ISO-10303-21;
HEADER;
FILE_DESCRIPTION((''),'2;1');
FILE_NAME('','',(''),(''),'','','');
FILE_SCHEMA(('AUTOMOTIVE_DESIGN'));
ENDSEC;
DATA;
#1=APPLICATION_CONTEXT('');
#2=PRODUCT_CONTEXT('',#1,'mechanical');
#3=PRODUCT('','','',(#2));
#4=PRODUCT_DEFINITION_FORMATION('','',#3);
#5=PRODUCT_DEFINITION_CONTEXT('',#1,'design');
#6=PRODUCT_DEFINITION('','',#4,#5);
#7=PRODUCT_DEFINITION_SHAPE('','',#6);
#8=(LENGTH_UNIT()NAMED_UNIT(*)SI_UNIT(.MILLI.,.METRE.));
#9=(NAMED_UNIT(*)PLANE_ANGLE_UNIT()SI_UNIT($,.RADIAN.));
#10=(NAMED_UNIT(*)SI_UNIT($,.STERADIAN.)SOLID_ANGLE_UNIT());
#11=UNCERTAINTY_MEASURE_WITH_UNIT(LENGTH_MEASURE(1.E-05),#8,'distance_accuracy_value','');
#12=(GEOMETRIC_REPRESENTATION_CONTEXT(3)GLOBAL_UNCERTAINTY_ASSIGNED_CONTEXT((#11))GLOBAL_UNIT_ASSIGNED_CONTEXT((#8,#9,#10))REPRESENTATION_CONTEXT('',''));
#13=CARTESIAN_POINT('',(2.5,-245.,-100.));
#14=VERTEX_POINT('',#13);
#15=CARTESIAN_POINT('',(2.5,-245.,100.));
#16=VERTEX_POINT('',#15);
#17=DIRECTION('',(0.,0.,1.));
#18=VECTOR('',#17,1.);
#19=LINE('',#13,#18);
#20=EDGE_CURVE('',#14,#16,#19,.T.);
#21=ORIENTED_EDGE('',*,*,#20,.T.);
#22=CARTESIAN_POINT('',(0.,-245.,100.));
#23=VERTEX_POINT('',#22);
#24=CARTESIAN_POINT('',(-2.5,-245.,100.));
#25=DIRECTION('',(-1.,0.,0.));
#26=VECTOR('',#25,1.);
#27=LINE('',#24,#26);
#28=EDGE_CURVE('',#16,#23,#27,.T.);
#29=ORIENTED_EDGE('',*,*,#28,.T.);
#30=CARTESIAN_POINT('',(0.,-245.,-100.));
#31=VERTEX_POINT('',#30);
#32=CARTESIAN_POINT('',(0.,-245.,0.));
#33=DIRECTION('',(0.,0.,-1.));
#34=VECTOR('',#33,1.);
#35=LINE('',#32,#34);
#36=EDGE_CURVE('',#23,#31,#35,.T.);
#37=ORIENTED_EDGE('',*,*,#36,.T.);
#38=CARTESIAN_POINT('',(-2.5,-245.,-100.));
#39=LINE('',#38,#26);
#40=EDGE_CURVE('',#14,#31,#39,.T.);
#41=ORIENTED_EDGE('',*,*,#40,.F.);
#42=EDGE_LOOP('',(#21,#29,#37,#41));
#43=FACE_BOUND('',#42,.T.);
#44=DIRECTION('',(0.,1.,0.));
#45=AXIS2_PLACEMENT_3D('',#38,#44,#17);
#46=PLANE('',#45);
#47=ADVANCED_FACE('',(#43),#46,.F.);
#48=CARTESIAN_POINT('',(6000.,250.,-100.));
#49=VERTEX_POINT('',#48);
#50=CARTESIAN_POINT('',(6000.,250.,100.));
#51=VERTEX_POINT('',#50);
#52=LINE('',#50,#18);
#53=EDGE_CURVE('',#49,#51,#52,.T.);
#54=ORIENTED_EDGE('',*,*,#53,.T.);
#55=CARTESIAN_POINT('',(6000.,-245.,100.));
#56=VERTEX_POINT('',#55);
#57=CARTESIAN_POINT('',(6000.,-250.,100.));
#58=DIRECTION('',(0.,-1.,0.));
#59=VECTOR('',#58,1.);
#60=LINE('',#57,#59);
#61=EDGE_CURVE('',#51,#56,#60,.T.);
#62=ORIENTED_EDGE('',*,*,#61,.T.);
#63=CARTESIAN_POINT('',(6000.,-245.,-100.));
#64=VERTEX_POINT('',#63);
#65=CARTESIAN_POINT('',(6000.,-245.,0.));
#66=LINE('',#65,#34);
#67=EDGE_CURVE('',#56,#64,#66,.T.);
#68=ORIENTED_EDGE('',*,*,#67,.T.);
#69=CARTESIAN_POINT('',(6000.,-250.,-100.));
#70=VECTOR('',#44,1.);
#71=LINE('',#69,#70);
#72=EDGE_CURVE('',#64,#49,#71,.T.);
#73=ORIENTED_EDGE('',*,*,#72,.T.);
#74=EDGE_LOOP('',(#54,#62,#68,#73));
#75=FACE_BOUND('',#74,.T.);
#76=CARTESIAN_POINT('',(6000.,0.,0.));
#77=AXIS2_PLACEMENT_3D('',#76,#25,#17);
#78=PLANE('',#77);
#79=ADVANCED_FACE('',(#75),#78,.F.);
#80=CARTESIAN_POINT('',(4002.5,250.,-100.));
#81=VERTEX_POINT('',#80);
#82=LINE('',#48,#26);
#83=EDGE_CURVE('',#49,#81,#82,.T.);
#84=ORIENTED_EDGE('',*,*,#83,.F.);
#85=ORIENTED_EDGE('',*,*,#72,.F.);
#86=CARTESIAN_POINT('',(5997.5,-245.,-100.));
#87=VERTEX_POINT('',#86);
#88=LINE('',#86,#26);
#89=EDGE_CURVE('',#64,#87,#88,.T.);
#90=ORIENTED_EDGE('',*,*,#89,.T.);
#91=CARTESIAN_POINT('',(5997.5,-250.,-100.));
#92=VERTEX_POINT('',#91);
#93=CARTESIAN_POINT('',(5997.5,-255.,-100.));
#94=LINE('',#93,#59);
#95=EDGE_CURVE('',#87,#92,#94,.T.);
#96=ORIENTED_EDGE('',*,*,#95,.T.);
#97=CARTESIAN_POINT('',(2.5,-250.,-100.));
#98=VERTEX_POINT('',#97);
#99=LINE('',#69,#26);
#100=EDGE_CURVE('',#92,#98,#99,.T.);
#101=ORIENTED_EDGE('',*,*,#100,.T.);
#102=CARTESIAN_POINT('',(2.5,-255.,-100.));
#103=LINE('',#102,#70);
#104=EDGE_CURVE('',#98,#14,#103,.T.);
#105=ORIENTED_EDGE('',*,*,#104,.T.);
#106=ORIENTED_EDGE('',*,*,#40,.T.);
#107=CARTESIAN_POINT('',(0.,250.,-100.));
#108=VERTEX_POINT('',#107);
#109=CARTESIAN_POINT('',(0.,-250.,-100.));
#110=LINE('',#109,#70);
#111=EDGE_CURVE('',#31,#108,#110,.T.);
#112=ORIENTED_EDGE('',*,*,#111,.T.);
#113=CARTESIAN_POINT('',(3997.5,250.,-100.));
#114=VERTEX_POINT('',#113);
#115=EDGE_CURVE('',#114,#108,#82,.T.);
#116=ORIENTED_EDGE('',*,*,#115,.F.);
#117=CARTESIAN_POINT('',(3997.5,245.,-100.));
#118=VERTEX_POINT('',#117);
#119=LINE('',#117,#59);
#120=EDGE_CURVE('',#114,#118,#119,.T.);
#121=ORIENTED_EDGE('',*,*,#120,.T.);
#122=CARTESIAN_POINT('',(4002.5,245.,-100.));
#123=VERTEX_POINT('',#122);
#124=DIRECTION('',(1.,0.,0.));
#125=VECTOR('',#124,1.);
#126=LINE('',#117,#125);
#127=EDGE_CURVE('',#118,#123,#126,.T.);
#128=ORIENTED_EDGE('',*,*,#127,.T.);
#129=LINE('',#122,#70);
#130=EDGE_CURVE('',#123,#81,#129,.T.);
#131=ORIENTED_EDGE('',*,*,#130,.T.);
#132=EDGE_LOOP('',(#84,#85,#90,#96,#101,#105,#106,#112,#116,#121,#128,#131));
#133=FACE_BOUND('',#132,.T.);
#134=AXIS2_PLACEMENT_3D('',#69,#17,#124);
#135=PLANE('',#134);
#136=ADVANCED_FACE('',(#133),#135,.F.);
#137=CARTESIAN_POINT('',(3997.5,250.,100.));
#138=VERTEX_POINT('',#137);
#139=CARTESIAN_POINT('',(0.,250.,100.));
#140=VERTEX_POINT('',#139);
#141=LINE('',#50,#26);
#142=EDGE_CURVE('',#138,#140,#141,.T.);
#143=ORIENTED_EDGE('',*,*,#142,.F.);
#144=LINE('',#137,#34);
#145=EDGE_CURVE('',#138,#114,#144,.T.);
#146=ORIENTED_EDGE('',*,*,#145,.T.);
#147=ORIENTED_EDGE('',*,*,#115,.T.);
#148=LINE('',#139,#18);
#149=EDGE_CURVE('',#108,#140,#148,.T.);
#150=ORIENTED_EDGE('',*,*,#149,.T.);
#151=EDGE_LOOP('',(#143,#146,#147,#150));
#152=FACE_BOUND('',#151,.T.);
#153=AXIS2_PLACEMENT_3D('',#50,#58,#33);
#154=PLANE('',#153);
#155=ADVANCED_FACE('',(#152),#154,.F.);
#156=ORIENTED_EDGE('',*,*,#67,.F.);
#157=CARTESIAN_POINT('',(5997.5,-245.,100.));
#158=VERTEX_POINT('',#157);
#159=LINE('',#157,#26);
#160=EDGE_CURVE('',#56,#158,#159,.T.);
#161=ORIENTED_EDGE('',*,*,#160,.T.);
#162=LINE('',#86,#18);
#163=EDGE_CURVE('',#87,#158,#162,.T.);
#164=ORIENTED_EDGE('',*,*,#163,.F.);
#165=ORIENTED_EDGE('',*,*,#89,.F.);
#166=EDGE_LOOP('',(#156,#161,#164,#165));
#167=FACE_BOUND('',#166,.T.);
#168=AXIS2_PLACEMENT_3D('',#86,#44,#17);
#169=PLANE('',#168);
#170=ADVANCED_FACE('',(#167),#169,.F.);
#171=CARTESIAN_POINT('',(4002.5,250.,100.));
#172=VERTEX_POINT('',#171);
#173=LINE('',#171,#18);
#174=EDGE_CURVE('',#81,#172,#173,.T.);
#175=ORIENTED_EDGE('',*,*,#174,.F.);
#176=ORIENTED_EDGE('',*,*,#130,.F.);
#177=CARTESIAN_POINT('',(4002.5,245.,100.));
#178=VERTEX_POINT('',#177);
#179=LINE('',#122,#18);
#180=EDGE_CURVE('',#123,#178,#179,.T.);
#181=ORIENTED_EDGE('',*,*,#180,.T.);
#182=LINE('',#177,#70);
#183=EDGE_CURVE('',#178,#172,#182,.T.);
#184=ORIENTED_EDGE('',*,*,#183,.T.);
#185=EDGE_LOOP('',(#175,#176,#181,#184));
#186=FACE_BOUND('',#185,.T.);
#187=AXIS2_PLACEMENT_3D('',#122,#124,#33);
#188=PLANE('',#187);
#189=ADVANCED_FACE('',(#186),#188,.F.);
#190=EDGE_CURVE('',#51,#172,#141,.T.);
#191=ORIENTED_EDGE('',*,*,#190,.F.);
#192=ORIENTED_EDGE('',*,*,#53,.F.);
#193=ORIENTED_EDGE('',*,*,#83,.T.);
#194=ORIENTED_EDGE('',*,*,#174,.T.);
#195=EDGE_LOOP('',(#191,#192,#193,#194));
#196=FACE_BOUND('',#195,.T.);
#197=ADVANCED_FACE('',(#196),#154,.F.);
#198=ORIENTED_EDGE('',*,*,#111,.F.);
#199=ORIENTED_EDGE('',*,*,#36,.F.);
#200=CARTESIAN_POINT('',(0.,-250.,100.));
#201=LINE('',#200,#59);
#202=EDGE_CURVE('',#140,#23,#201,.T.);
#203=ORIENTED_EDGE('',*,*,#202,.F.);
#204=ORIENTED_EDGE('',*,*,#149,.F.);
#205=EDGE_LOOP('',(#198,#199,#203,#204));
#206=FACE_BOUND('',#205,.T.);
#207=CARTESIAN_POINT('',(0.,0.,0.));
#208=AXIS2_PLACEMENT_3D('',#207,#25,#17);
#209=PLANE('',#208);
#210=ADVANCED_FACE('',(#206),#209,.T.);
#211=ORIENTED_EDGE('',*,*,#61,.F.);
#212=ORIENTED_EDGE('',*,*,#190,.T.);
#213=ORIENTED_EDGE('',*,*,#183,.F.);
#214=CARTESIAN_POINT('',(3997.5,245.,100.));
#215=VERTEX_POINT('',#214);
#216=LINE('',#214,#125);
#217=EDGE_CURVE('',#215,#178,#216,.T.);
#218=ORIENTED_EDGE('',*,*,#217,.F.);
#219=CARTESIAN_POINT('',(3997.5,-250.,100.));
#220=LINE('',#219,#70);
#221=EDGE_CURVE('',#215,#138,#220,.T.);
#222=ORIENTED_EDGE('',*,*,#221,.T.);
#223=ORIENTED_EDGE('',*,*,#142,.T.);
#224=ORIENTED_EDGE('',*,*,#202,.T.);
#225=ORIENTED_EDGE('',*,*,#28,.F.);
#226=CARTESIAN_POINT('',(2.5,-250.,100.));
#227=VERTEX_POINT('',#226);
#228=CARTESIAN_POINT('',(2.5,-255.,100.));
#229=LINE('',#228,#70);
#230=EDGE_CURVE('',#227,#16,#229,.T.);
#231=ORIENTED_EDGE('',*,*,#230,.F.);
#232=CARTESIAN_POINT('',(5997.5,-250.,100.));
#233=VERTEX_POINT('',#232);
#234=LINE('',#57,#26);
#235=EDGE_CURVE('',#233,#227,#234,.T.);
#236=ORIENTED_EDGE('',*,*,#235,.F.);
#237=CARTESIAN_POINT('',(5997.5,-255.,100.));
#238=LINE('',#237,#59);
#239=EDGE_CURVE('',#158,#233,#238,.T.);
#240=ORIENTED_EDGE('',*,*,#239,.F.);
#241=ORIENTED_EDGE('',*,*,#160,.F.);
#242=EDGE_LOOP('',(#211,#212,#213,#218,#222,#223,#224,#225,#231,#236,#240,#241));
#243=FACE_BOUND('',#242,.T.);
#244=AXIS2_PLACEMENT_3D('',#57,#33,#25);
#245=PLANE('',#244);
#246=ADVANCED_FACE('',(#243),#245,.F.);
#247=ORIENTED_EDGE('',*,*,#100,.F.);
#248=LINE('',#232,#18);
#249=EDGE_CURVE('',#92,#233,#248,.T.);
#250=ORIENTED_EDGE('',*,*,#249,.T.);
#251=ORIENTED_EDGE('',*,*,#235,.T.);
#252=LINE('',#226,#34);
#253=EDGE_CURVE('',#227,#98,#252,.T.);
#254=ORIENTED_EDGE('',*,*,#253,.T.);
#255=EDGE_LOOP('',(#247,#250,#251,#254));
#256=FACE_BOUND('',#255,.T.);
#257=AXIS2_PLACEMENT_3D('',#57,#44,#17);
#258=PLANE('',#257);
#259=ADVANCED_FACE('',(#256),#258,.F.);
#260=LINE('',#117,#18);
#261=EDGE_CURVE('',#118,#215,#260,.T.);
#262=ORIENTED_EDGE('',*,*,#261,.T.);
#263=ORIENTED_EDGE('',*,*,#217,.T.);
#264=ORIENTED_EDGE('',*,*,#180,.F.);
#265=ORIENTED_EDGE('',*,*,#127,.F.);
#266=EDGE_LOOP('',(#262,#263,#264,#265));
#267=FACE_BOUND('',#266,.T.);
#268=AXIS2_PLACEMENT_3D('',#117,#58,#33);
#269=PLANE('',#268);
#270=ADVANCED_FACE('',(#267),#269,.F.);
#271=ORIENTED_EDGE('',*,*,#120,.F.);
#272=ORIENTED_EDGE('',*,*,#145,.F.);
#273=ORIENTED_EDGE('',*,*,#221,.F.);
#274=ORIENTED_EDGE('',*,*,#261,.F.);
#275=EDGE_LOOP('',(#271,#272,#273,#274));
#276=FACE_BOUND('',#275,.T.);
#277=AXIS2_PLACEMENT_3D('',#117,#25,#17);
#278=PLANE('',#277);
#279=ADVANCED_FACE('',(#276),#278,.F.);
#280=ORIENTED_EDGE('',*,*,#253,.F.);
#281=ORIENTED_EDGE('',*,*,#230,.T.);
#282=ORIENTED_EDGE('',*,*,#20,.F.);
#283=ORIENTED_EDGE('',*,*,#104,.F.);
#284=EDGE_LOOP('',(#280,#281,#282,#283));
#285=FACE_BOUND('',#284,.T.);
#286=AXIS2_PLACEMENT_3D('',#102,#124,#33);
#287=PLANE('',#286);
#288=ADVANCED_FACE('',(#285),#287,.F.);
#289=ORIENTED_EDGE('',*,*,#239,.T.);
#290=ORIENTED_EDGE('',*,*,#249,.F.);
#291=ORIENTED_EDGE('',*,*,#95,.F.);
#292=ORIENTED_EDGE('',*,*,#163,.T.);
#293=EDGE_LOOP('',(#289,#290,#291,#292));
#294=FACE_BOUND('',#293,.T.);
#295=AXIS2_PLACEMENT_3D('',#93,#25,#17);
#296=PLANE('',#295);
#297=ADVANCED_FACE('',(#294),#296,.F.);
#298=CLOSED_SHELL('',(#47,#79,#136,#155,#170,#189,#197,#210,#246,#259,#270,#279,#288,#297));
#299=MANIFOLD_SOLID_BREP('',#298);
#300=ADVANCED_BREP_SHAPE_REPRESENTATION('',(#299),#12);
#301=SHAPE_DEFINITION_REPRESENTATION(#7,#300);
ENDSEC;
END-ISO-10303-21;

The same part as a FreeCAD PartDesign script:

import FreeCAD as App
import Part
import Sketcher

doc = App.newDocument("Part")
body = doc.addObject("PartDesign::Body", "Body")

# Sketch on YZ plane
sketch1 = body.newObject("Sketcher::SketchObject", "Sketch")
sketch1.AttachmentSupport = (doc.getObject("YZ_Plane"), [""])
sketch1.MapMode = "FlatFace"
sketch1.addGeometry([
    Part.LineSegment(App.Vector(250, 100, 0), App.Vector(-250, 100, 0)),
    Part.LineSegment(App.Vector(-250, 100, 0), App.Vector(-250, -100, 0)),
    Part.LineSegment(App.Vector(-250, -100, 0), App.Vector(250, -100, 0)),
    Part.LineSegment(App.Vector(250, -100, 0), App.Vector(250, 100, 0)),
], False)
sketch1.addConstraint([
    Sketcher.Constraint("Coincident", 0, 2, 1, 1),
    Sketcher.Constraint("Coincident", 1, 2, 2, 1),
    Sketcher.Constraint("Coincident", 2, 2, 3, 1),
    Sketcher.Constraint("Coincident", 3, 2, 0, 1),
    Sketcher.Constraint("Horizontal", 0),
    Sketcher.Constraint("Vertical", 1),
    Sketcher.Constraint("Horizontal", 2),
    Sketcher.Constraint("Vertical", 3),
    Sketcher.Constraint("Symmetric", 0, 2, 2, 2, -1, 1),
    Sketcher.Constraint("DistanceX", 0, 2, 0, 1, 500.0),
    Sketcher.Constraint("DistanceY", 1, 2, 1, 1, 200.0),
])
pad1 = body.newObject("PartDesign::Pad", "Pad")
pad1.Profile = sketch1
pad1.Length = 6000

# Sketch on XY plane
sketch2 = body.newObject("Sketcher::SketchObject", "Sketch001")
sketch2.AttachmentSupport = (doc.getObject("XY_Plane"), [""])
sketch2.MapMode = "FlatFace"
sketch2.AttachmentOffset = App.Placement(App.Vector(0, 0, 100), App.Rotation())
sketch2.addGeometry([
    Part.LineSegment(App.Vector(-2, -245, 0), App.Vector(-2, -255, 0)),  # 0
    Part.LineSegment(App.Vector(-2, -255, 0), App.Vector(2, -255, 0)),  # 1
    Part.LineSegment(App.Vector(2, -255, 0), App.Vector(2, -245, 0)),  # 2
    Part.LineSegment(App.Vector(2, -245, 0), App.Vector(-2, -245, 0)),  # 3
    Part.LineSegment(App.Vector(5998, -245, 0), App.Vector(5998, -255, 0)),  # 4
    Part.LineSegment(App.Vector(5998, -255, 0), App.Vector(6002, -255, 0)),  # 5
    Part.LineSegment(App.Vector(6002, -255, 0), App.Vector(6002, -245, 0)),  # 6
    Part.LineSegment(App.Vector(6002, -245, 0), App.Vector(5998, -245, 0)),  # 7
    Part.LineSegment(App.Vector(3998, 255, 0), App.Vector(3998, 245, 0)),  # 8
    Part.LineSegment(App.Vector(3998, 245, 0), App.Vector(4002, 245, 0)),  # 9
    Part.LineSegment(App.Vector(4002, 245, 0), App.Vector(4002, 255, 0)),  # 10
    Part.LineSegment(App.Vector(4002, 255, 0), App.Vector(3998, 255, 0)),  # 11
], False)
sketch2.addConstraint([
    Sketcher.Constraint("Coincident", 0, 2, 1, 1),
    Sketcher.Constraint("Coincident", 1, 2, 2, 1),
    Sketcher.Constraint("Coincident", 2, 2, 3, 1),
    Sketcher.Constraint("Coincident", 3, 2, 0, 1),
    Sketcher.Constraint("Coincident", 4, 2, 5, 1),
    Sketcher.Constraint("Coincident", 5, 2, 6, 1),
    Sketcher.Constraint("Coincident", 6, 2, 7, 1),
    Sketcher.Constraint("Coincident", 7, 2, 4, 1),
    Sketcher.Constraint("Coincident", 8, 2, 9, 1),
    Sketcher.Constraint("Coincident", 9, 2, 10, 1),
    Sketcher.Constraint("Coincident", 10, 2, 11, 1),
    Sketcher.Constraint("Coincident", 11, 2, 8, 1),
    Sketcher.Constraint("Vertical", 0),
    Sketcher.Constraint("Horizontal", 1),
    Sketcher.Constraint("Vertical", 2),
    Sketcher.Constraint("Horizontal", 3),
    Sketcher.Constraint("Vertical", 4),
    Sketcher.Constraint("Horizontal", 5),
    Sketcher.Constraint("Vertical", 6),
    Sketcher.Constraint("Horizontal", 7),
    Sketcher.Constraint("Vertical", 8),
    Sketcher.Constraint("Horizontal", 9),
    Sketcher.Constraint("Vertical", 10),
    Sketcher.Constraint("Horizontal", 11),
    Sketcher.Constraint("Horizontal", 1, 2, 4, 2),
    Sketcher.Constraint("Horizontal", 3, 2, 6, 2),
    Sketcher.Constraint("Equal", 3, 5),
    Sketcher.Constraint("Equal", 7, 9),
    Sketcher.Constraint("Equal", 6, 8),
    Sketcher.Constraint("DistanceX", 1, 1, 1, 2, 5.0),
    Sketcher.Constraint("DistanceY", 0, 2, 0, 1, 10.0),
    Sketcher.Constraint("DistanceY", 0, 2, -1, 1, 255.0),
    Sketcher.Constraint("DistanceY", -1, 1, 8, 2, 245.0),
    Sketcher.Constraint("DistanceX", 1, 2, 4, 2, 5995.0),
    Sketcher.Constraint("DistanceX", 8, 2, 7, 2, 2000.0),
    Sketcher.Constraint("DistanceX", 0, 2, -1, 1, 2.5),
])
pocket1 = body.newObject("PartDesign::Pocket", "Pocket")
pocket1.Profile = sketch2
pocket1.Type = "ThroughAll"

doc.recompute()
